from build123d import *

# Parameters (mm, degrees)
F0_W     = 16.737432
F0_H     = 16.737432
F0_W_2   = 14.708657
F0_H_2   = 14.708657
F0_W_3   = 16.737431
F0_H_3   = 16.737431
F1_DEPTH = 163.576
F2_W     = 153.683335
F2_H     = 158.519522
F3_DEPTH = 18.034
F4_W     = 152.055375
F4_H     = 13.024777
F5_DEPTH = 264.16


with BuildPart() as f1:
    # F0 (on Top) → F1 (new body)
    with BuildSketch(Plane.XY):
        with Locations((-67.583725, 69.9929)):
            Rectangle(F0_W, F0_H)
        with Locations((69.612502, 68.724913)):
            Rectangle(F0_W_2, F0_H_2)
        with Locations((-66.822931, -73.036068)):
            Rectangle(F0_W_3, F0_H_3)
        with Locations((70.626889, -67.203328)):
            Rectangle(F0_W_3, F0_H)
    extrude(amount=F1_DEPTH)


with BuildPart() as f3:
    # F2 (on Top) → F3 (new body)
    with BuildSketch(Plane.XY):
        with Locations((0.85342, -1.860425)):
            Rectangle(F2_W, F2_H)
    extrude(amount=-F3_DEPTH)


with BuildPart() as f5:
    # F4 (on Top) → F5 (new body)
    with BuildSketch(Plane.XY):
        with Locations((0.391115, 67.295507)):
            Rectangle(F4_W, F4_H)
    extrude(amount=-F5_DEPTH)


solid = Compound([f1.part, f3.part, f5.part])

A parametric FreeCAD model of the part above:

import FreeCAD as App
import Part
import Sketcher
Q = App.Units.Quantity

doc = App.newDocument("Part")
body = doc.addObject("PartDesign::Body", "Body")
body.AllowCompound = True

# Sketch on XY plane
sketch1 = body.newObject("Sketcher::SketchObject", "Sketch")
sketch1.AttachmentSupport = (doc.getObject("XY_Plane"), [""])
sketch1.MapMode = "FlatFace"
sketch1.addGeometry([
    Part.LineSegment(App.Vector(-76, 78, 0), App.Vector(-76, 62, 0)),  # 0
    Part.LineSegment(App.Vector(-76, 62, 0), App.Vector(-59, 62, 0)),  # 1
    Part.LineSegment(App.Vector(-59, 62, 0), App.Vector(-59, 78, 0)),  # 2
    Part.LineSegment(App.Vector(-59, 78, 0), App.Vector(-76, 78, 0)),  # 3
    Part.LineSegment(App.Vector(62, 76, 0), App.Vector(62, 61, 0)),  # 4
    Part.LineSegment(App.Vector(62, 61, 0), App.Vector(77, 61, 0)),  # 5
    Part.LineSegment(App.Vector(77, 61, 0), App.Vector(77, 76, 0)),  # 6
    Part.LineSegment(App.Vector(77, 76, 0), App.Vector(62, 76, 0)),  # 7
    Part.LineSegment(App.Vector(-75, -65, 0), App.Vector(-75, -81, 0)),  # 8
    Part.LineSegment(App.Vector(-75, -81, 0), App.Vector(-58, -81, 0)),  # 9
    Part.LineSegment(App.Vector(-58, -81, 0), App.Vector(-58, -65, 0)),  # 10
    Part.LineSegment(App.Vector(-58, -65, 0), App.Vector(-75, -65, 0)),  # 11
    Part.LineSegment(App.Vector(62, -59, 0), App.Vector(62, -76, 0)),  # 12
    Part.LineSegment(App.Vector(62, -76, 0), App.Vector(79, -76, 0)),  # 13
    Part.LineSegment(App.Vector(79, -76, 0), App.Vector(79, -59, 0)),  # 14
    Part.LineSegment(App.Vector(79, -59, 0), App.Vector(62, -59, 0)),  # 15
], False)
sketch1.addConstraint([
    Sketcher.Constraint("Coincident", 0, 2, 1, 1),
    Sketcher.Constraint("Coincident", 1, 2, 2, 1),
    Sketcher.Constraint("Coincident", 2, 2, 3, 1),
    Sketcher.Constraint("Coincident", 3, 2, 0, 1),
    Sketcher.Constraint("Coincident", 4, 2, 5, 1),
    Sketcher.Constraint("Coincident", 5, 2, 6, 1),
    Sketcher.Constraint("Coincident", 6, 2, 7, 1),
    Sketcher.Constraint("Coincident", 7, 2, 4, 1),
    Sketcher.Constraint("Coincident", 8, 2, 9, 1),
    Sketcher.Constraint("Coincident", 9, 2, 10, 1),
    Sketcher.Constraint("Coincident", 10, 2, 11, 1),
    Sketcher.Constraint("Coincident", 11, 2, 8, 1),
    Sketcher.Constraint("Coincident", 12, 2, 13, 1),
    Sketcher.Constraint("Coincident", 13, 2, 14, 1),
    Sketcher.Constraint("Coincident", 14, 2, 15, 1),
    Sketcher.Constraint("Coincident", 15, 2, 12, 1),
    Sketcher.Constraint("Vertical", 0),
    Sketcher.Constraint("Horizontal", 1),
    Sketcher.Constraint("Vertical", 2),
    Sketcher.Constraint("Horizontal", 3),
    Sketcher.Constraint("Vertical", 4),
    Sketcher.Constraint("Horizontal", 5),
    Sketcher.Constraint("Vertical", 6),
    Sketcher.Constraint("Horizontal", 7),
    Sketcher.Constraint("Vertical", 8),
    Sketcher.Constraint("Horizontal", 9),
    Sketcher.Constraint("Vertical", 10),
    Sketcher.Constraint("Horizontal", 11),
    Sketcher.Constraint("Vertical", 12),
    Sketcher.Constraint("Horizontal", 13),
    Sketcher.Constraint("Vertical", 14),
    Sketcher.Constraint("Horizontal", 15),
    Sketcher.Constraint("Vertical", 7, 2, 12, 2),
    Sketcher.Constraint("Equal", 3, 9),
    Sketcher.Constraint("Equal", 11, 13),
    Sketcher.Constraint("Equal", 15, 0),
    Sketcher.Constraint("Equal", 7, 4),
    Sketcher.Constraint("Equal", 2, 8),
    Sketcher.Constraint("Equal", 10, 12),
    Sketcher.Constraint("DistanceX", 1, 1, 1, 2, Q("16.737432 mm")),
    Sketcher.Constraint("DistanceY", 4, 2, 1, 2, Q("0.253599 mm")),
    Sketcher.Constraint("DistanceY", 8, 2, 3, 2, Q("159.766399 mm")),
    Sketcher.Constraint("DistanceX", 5, 1, 5, 2, Q("14.708657 mm")),
    Sketcher.Constraint("DistanceX", 0, 2, -1, 1, Q("75.952441 mm")),
    Sketcher.Constraint("DistanceX", -1, 1, 5, 2, Q("76.966831 mm")),
    Sketcher.Constraint("DistanceY", -1, 1, 6, 2, Q("76.079241 mm")),
    Sketcher.Constraint("DistanceX", 8, 2, 4, 2, Q("137.44982 mm")),
    Sketcher.Constraint("DistanceY", 9, 2, 12, 2, Q("5.832739 mm")),
])
pad1 = body.newObject("PartDesign::Pad", "Pad")
pad1.Profile = sketch1
pad1.Length = Q("6.44 in")
body2 = doc.addObject("PartDesign::Body", "Body001")

# Sketch on XY plane
sketch2 = body2.newObject("Sketcher::SketchObject", "Sketch001")
sketch2.AttachmentSupport = (doc.getObject("XY_Plane001"), [""])
sketch2.MapMode = "FlatFace"
sketch2.addGeometry([
    Part.LineSegment(App.Vector(-76, 77, 0), App.Vector(-76, -81, 0)),
    Part.LineSegment(App.Vector(-76, -81, 0), App.Vector(78, -81, 0)),
    Part.LineSegment(App.Vector(78, -81, 0), App.Vector(78, 77, 0)),
    Part.LineSegment(App.Vector(78, 77, 0), App.Vector(-76, 77, 0)),
], False)
sketch2.addConstraint([
    Sketcher.Constraint("Coincident", 0, 2, 1, 1),
    Sketcher.Constraint("Coincident", 1, 2, 2, 1),
    Sketcher.Constraint("Coincident", 2, 2, 3, 1),
    Sketcher.Constraint("Coincident", 3, 2, 0, 1),
    Sketcher.Constraint("Vertical", 0),
    Sketcher.Constraint("Horizontal", 1),
    Sketcher.Constraint("Vertical", 2),
    Sketcher.Constraint("Horizontal", 3),
    Sketcher.Constraint("DistanceY", 0, 2, 0, 1, Q("158.519522 mm")),
    Sketcher.Constraint("DistanceX", 1, 1, 1, 2, Q("153.683335 mm")),
    Sketcher.Constraint("DistanceX", 0, 2, -1, 1, Q("75.988247 mm")),
    Sketcher.Constraint("DistanceY", 0, 2, -1, 1, Q("81.120186 mm")),
])
pad2 = body2.newObject("PartDesign::Pad", "Pad001")
pad2.Profile = sketch2
pad2.Length = Q("0.71 in")
pad2.Reversed = True
body3 = doc.addObject("PartDesign::Body", "Body002")

# Sketch on XY plane
sketch3 = body3.newObject("Sketcher::SketchObject", "Sketch002")
sketch3.AttachmentSupport = (doc.getObject("XY_Plane002"), [""])
sketch3.MapMode = "FlatFace"
sketch3.addGeometry([
    Part.LineSegment(App.Vector(-76, 74, 0), App.Vector(-76, 61, 0)),
    Part.LineSegment(App.Vector(-76, 61, 0), App.Vector(76, 61, 0)),
    Part.LineSegment(App.Vector(76, 61, 0), App.Vector(76, 74, 0)),
    Part.LineSegment(App.Vector(76, 74, 0), App.Vector(-76, 74, 0)),
], False)
sketch3.addConstraint([
    Sketcher.Constraint("Coincident", 0, 2, 1, 1),
    Sketcher.Constraint("Coincident", 1, 2, 2, 1),
    Sketcher.Constraint("Coincident", 2, 2, 3, 1),
    Sketcher.Constraint("Coincident", 3, 2, 0, 1),
    Sketcher.Constraint("Vertical", 0),
    Sketcher.Constraint("Horizontal", 1),
    Sketcher.Constraint("Vertical", 2),
    Sketcher.Constraint("Horizontal", 3),
    Sketcher.Constraint("DistanceX", 1, 1, 1, 2, Q("152.055375 mm")),
    Sketcher.Constraint("DistanceY", 0, 2, 0, 1, Q("13.024777 mm")),
    Sketcher.Constraint("DistanceY", -1, 1, 0, 2, Q("60.783119 mm")),
    Sketcher.Constraint("DistanceX", 0, 2, -1, 1, Q("75.636572 mm")),
])
pad3 = body3.newObject("PartDesign::Pad", "Pad002")
pad3.Profile = sketch3
pad3.Length = Q("10.4 in")
pad3.Reversed = True

doc.recompute()
